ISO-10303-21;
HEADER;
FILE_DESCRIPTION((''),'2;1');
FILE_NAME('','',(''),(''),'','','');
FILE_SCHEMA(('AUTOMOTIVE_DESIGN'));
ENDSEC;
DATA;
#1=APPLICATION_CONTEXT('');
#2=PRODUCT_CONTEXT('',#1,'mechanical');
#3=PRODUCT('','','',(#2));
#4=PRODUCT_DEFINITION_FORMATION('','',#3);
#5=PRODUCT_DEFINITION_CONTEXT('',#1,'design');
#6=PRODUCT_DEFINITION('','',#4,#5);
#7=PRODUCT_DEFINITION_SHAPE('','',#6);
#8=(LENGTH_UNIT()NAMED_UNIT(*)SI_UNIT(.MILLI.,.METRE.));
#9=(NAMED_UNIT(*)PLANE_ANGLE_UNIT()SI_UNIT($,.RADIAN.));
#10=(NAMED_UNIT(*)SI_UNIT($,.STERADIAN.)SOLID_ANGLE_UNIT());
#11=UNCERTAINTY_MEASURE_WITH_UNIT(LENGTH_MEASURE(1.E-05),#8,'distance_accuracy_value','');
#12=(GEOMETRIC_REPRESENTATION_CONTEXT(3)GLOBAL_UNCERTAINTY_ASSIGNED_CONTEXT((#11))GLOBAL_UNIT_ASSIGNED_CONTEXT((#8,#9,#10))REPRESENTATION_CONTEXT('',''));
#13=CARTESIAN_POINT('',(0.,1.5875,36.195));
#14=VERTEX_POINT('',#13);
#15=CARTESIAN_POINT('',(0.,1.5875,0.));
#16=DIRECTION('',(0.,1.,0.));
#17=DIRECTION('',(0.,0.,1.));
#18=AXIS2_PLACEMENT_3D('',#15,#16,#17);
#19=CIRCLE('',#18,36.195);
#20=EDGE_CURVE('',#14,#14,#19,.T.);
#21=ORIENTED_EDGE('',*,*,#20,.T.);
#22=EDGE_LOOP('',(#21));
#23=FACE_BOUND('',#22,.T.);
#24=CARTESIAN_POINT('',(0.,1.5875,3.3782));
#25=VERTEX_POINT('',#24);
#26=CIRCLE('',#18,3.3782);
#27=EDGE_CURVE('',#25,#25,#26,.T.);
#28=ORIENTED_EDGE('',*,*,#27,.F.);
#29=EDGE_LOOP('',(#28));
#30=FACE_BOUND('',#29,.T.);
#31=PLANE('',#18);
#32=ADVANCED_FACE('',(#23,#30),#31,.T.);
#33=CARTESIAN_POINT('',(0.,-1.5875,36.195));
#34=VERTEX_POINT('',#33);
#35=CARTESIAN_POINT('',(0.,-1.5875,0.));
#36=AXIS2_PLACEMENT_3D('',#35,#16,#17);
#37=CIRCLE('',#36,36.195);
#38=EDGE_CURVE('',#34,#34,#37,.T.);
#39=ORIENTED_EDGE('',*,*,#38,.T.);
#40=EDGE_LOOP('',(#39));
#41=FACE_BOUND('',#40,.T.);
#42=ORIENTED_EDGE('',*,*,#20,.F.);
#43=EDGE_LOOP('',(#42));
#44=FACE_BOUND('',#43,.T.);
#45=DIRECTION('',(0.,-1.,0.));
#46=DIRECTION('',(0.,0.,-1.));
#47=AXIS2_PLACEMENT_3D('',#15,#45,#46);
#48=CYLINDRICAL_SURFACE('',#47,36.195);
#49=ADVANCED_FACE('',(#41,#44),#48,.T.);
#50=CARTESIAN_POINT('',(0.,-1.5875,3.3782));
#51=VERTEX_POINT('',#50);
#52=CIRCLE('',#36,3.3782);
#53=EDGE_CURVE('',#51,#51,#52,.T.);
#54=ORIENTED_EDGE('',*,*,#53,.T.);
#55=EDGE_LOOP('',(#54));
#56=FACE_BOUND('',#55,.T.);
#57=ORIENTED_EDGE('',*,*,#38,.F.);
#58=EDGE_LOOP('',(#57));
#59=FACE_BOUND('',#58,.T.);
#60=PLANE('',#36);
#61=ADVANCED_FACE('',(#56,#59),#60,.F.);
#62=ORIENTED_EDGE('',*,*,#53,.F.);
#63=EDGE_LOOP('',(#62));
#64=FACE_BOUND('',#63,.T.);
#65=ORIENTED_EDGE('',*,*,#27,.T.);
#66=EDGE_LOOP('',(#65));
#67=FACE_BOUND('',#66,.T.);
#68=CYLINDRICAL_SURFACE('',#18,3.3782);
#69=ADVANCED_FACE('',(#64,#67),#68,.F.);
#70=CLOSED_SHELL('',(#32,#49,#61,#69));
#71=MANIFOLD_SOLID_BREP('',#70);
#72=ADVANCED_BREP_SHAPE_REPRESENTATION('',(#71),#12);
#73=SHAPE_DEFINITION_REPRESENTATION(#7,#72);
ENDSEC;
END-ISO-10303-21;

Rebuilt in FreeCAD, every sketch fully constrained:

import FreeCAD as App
import Part
import Sketcher
Q = App.Units.Quantity

doc = App.newDocument("Part")
params = doc.addObject("Spreadsheet::Sheet", "Params")
for row, (alias, value) in enumerate([
    ("sketch1_diameter", "2.85 in"),
    ("pad1_length", "0.125 in"),
    ("sketch2_diameter", "0.266 in"),
    ("hole_diameter", "0.266 in"),
], start=1):
    params.set(f"A{row}", alias)
    params.set(f"B{row}", "=" + value)
    params.setAlias(f"B{row}", alias)

body = doc.addObject("PartDesign::Body", "Body")

# Sketch on XZ plane
sketch1 = body.newObject("Sketcher::SketchObject", "Sketch")
sketch1.AttachmentSupport = (doc.getObject("XZ_Plane"), [""])
sketch1.MapMode = "FlatFace"
sketch1.addGeometry(Part.Circle(App.Vector(0, 0, 0), App.Vector(0, 0, 1), 36), False)
sketch1.addConstraint(Sketcher.Constraint("Coincident", 0, 3, -1, 1))
sketch1.addConstraint(Sketcher.Constraint("Diameter", 0, Q("2.85 in")))
sketch1.setExpression("Constraints[1]", "Params.sketch1_diameter")
pad1 = body.newObject("PartDesign::Pad", "Pad")
pad1.Profile = sketch1
pad1.setExpression("Length", "Params.pad1_length")
pad1.Midplane = True

# Sketch on XZ plane
sketch2 = body.newObject("Sketcher::SketchObject", "Sketch001")
sketch2.AttachmentSupport = (doc.getObject("XZ_Plane"), [""])
sketch2.MapMode = "FlatFace"
sketch2.AttachmentOffset = App.Placement(App.Vector(0, 0, -0.0625 * 25.4), App.Rotation())
sketch2.addGeometry(Part.Circle(App.Vector(0, 0, 0), App.Vector(0, 0, 1), 3.4), False)
sketch2.addConstraint(Sketcher.Constraint("Coincident", 0, 3, -1, 1))
sketch2.addConstraint(Sketcher.Constraint("Diameter", 0, Q("0.266 in")))
sketch2.setExpression("Constraints[1]", "Params.sketch2_diameter")
doc.recompute()
hole = body.newObject("PartDesign::Hole", "Hole")
hole.Profile = sketch2
hole.ThreadType = "None"
hole.setExpression("Diameter", "Params.hole_diameter")
hole.DepthType = "ThroughAll"
hole.Reversed = True

doc.recompute()
